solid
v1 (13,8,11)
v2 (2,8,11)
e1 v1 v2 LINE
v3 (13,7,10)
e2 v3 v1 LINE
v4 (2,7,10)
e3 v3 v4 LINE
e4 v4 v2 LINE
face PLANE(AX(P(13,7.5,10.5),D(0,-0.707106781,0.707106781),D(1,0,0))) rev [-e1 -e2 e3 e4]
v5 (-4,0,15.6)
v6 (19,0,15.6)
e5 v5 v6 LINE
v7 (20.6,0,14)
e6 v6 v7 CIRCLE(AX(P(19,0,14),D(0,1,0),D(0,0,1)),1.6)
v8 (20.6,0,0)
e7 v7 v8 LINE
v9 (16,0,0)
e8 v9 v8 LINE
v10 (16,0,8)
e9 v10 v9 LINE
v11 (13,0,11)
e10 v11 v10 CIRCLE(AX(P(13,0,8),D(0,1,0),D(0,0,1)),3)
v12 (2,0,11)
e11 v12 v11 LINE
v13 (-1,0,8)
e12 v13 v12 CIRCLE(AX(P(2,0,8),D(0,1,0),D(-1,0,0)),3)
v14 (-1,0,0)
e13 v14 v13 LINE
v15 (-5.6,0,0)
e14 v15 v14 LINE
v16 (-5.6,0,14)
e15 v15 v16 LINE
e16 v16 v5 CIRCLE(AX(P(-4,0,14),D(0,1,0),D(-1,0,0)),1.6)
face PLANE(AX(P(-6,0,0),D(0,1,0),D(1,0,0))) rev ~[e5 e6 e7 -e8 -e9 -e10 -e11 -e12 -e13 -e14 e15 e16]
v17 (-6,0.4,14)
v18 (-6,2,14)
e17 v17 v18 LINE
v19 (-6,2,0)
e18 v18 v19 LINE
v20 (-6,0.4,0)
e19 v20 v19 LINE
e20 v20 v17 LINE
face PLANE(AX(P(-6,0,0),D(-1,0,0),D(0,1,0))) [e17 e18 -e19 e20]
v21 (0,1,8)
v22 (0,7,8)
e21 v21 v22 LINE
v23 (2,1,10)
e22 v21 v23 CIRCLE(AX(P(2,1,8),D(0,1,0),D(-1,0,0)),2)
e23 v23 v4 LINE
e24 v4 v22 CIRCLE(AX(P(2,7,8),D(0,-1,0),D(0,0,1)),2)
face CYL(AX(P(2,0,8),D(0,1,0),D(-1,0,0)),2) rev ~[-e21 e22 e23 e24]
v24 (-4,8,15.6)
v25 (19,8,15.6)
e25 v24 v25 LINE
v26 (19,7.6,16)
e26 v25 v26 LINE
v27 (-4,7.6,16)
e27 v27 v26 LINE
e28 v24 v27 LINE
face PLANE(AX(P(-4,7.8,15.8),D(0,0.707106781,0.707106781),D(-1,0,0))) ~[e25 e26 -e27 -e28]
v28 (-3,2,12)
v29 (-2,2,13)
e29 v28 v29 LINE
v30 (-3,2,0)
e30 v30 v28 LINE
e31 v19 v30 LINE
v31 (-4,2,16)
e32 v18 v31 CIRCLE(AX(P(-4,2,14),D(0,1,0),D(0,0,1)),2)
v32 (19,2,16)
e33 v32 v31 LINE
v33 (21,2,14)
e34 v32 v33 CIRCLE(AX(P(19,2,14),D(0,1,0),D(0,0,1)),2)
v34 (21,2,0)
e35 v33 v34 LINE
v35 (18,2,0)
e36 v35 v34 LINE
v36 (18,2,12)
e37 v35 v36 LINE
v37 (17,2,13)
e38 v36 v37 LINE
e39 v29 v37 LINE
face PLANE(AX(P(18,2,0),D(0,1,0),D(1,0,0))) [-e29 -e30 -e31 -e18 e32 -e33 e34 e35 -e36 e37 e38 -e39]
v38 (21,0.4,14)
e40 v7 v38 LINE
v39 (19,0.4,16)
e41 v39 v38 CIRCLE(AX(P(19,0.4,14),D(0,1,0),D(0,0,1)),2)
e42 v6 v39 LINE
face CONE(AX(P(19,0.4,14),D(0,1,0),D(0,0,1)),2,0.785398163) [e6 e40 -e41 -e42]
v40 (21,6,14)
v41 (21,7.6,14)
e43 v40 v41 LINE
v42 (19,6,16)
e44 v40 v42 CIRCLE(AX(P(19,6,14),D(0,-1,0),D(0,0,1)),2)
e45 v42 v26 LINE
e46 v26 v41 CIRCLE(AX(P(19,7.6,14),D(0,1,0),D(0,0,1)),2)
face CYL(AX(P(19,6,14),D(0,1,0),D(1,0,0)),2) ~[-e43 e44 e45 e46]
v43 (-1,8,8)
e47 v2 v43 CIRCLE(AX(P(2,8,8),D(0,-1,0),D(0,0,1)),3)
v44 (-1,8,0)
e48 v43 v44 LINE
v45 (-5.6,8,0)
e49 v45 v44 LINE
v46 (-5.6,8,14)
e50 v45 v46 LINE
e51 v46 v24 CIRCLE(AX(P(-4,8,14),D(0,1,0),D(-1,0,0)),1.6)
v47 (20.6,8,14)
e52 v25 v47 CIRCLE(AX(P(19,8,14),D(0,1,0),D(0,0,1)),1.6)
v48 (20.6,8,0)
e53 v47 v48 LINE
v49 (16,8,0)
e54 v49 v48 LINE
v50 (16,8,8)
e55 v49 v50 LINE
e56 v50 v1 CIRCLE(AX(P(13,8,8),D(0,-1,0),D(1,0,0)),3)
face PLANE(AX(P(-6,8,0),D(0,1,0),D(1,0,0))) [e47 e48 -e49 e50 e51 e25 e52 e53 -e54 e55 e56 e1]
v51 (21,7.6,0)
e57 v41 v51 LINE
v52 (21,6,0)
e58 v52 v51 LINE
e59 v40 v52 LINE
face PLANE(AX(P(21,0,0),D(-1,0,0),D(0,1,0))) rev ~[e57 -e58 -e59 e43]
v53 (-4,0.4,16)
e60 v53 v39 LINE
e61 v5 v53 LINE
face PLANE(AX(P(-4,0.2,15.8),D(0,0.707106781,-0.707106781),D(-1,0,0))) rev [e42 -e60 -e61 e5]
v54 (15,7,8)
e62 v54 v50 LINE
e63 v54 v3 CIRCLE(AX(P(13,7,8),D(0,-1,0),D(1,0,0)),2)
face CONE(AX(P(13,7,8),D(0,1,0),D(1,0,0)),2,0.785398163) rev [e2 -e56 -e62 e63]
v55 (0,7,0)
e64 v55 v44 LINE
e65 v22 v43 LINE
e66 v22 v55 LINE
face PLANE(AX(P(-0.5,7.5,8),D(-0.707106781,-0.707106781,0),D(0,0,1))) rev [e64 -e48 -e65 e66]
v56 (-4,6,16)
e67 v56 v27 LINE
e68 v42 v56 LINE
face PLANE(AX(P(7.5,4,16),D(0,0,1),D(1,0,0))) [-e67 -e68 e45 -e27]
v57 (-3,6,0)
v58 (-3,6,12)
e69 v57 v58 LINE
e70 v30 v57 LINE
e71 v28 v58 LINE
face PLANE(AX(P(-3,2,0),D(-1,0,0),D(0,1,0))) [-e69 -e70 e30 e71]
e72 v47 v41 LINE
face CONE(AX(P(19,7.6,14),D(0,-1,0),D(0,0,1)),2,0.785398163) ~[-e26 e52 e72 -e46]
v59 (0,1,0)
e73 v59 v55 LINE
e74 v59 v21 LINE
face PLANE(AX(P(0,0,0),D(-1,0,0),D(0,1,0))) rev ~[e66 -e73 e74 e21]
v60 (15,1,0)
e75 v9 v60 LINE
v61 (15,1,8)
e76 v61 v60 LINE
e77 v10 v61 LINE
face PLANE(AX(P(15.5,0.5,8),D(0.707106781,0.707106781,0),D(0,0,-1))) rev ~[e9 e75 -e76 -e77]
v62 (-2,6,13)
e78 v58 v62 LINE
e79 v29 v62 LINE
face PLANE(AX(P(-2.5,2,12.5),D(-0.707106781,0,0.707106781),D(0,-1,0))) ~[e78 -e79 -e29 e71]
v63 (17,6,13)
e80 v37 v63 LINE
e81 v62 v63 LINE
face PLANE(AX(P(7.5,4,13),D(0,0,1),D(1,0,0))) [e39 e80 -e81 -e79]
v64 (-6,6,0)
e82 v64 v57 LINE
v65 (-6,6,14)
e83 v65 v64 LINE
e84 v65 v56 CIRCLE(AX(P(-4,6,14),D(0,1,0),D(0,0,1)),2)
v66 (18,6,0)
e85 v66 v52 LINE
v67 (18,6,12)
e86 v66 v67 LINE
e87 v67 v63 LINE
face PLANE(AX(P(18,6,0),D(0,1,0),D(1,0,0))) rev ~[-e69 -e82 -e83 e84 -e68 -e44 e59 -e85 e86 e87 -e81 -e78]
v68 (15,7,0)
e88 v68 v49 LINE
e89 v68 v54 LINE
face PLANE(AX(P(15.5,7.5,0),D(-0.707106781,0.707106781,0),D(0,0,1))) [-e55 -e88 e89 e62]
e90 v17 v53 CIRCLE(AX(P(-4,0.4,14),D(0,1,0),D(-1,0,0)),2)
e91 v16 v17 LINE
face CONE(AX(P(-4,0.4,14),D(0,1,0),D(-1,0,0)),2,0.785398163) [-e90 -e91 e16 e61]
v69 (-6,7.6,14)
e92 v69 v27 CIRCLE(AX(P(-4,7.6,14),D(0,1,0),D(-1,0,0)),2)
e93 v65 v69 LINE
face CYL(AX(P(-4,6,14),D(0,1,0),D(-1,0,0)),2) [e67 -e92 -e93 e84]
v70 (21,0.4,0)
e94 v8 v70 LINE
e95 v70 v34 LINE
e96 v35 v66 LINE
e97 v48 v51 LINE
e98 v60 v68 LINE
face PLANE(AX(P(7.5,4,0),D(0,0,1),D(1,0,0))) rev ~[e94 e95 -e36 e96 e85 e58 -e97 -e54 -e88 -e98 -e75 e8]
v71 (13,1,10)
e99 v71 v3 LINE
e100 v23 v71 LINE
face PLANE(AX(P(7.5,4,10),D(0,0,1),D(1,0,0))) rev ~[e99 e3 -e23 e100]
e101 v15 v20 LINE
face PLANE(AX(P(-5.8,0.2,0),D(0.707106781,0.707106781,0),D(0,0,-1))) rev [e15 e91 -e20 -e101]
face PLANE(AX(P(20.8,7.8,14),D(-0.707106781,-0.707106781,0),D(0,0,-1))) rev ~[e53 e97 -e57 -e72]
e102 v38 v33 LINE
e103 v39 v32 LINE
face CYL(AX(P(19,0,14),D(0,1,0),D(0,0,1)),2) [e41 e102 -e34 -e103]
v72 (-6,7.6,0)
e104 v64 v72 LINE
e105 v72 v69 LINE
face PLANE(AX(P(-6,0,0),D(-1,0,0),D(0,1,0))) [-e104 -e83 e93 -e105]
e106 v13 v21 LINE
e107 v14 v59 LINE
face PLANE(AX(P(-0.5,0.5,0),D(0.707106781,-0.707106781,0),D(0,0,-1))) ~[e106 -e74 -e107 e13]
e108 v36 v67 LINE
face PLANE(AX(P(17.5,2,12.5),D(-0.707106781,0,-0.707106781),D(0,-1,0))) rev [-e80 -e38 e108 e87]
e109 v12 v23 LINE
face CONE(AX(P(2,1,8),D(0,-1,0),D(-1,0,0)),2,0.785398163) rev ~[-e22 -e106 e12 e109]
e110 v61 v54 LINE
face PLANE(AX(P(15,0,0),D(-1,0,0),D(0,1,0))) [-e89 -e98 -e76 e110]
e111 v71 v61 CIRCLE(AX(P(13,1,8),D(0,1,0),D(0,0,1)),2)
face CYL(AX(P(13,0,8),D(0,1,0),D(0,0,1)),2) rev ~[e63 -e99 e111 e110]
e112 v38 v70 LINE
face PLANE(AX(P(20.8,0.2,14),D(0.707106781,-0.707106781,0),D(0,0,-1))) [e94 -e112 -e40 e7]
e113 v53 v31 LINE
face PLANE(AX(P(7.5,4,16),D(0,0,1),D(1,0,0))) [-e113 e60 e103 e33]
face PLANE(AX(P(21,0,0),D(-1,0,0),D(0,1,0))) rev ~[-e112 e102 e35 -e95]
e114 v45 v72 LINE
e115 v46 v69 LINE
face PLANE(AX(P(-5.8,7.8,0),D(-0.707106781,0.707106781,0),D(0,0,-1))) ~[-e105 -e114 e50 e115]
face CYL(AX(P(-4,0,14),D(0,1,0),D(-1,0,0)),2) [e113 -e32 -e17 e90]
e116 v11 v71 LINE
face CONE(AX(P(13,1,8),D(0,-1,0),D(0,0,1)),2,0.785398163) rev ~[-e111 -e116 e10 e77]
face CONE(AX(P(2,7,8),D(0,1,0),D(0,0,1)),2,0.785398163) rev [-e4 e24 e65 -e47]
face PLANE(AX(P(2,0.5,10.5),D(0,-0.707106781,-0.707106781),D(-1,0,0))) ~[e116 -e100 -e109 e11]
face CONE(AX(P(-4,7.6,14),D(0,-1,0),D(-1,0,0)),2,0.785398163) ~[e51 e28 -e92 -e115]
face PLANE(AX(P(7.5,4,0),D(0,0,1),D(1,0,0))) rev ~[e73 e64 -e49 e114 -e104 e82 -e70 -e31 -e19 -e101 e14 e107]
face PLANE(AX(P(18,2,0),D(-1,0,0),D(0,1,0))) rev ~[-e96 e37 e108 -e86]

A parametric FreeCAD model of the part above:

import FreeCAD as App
import Part
import Sketcher


def edges_at(feature, points):
    """Names of the edges that pass closest to the given points."""
    edges = feature.Shape.Edges
    near = lambda p: min(range(len(edges)), key=lambda i: edges[i].distToShape(Part.Vertex(*p))[0])
    return sorted({f"Edge{near(p) + 1}" for p in points})

doc = App.newDocument("Part")
body = doc.addObject("PartDesign::Body", "Body")

# Sketch on XY plane
sketch1 = doc.addObject("Sketcher::SketchObject", "Sketch")
body.addObject(sketch1)
sketch1.AttachmentSupport = (doc.XY_Plane, [""])
sketch1.MapMode = "FlatFace"
sketch1.AttachmentOffset = App.Placement(App.Vector(0, 0, 13), App.Rotation())
sketch1.addGeometry(Part.LineSegment(App.Vector(-3, 6, 0), App.Vector(-3, 2, 0)), False)
sketch1.addGeometry(Part.LineSegment(App.Vector(-3, 2, 0), App.Vector(18, 2, 0)), False)
sketch1.addGeometry(Part.LineSegment(App.Vector(18, 2, 0), App.Vector(18, 6, 0)), False)
sketch1.addGeometry(Part.LineSegment(App.Vector(18, 6, 0), App.Vector(-3, 6, 0)), False)
sketch1.addConstraint(Sketcher.Constraint("Coincident", 0, 2, 1, 1))
sketch1.addConstraint(Sketcher.Constraint("Coincident", 1, 2, 2, 1))
sketch1.addConstraint(Sketcher.Constraint("Coincident", 2, 2, 3, 1))
sketch1.addConstraint(Sketcher.Constraint("Coincident", 3, 2, 0, 1))
sketch1.addConstraint(Sketcher.Constraint("Vertical", 0))
sketch1.addConstraint(Sketcher.Constraint("Horizontal", 1))
sketch1.addConstraint(Sketcher.Constraint("Vertical", 2))
sketch1.addConstraint(Sketcher.Constraint("Horizontal", 3))
sketch1.addConstraint(Sketcher.Constraint("DistanceX", 1, 1, 1, 2, 21.0))
sketch1.addConstraint(Sketcher.Constraint("DistanceY", 0, 2, 0, 1, 4.0))
sketch1.addConstraint(Sketcher.Constraint("DistanceX", 0, 2, -1, 1, 3.0))
sketch1.addConstraint(Sketcher.Constraint("DistanceY", -1, 1, 0, 2, 2.0))
pad1 = doc.addObject("PartDesign::Pad", "Pad")
body.addObject(pad1)
pad1.Profile = sketch1
pad1.Length = 10
body2 = doc.addObject("PartDesign::Body", "Body001")

# Sketch on XY plane
sketch2 = doc.addObject("Sketcher::SketchObject", "Sketch001")
body2.addObject(sketch2)
sketch2.AttachmentSupport = (doc.getObject("XY_Plane001"), [""])
sketch2.MapMode = "FlatFace"
sketch2.addGeometry(Part.LineSegment(App.Vector(18, 6, 0), App.Vector(18, 2, 0)), False)
sketch2.addGeometry(Part.LineSegment(App.Vector(18, 2, 0), App.Vector(33, 2, 0)), False)
sketch2.addGeometry(Part.LineSegment(App.Vector(33, 2, 0), App.Vector(33, 6, 0)), False)
sketch2.addGeometry(Part.LineSegment(App.Vector(33, 6, 0), App.Vector(18, 6, 0)), False)
sketch2.addConstraint(Sketcher.Constraint("Coincident", 0, 2, 1, 1))
sketch2.addConstraint(Sketcher.Constraint("Coincident", 1, 2, 2, 1))
sketch2.addConstraint(Sketcher.Constraint("Coincident", 2, 2, 3, 1))
sketch2.addConstraint(Sketcher.Constraint("Coincident", 3, 2, 0, 1))
sketch2.addConstraint(Sketcher.Constraint("Vertical", 0))
sketch2.addConstraint(Sketcher.Constraint("Horizontal", 1))
sketch2.addConstraint(Sketcher.Constraint("Vertical", 2))
sketch2.addConstraint(Sketcher.Constraint("Horizontal", 3))
sketch2.addConstraint(Sketcher.Constraint("DistanceX", 1, 1, 1, 2, 15.0))
sketch2.addConstraint(Sketcher.Constraint("DistanceY", 0, 2, 0, 1, 4.0))
sketch2.addConstraint(Sketcher.Constraint("DistanceX", -1, 1, 0, 2, 18.0))
sketch2.addConstraint(Sketcher.Constraint("DistanceY", -1, 1, 0, 2, 2.0))
pad2 = doc.addObject("PartDesign::Pad", "Pad001")
body2.addObject(pad2)
pad2.Profile = sketch2
pad2.Length = 19
body3 = doc.addObject("PartDesign::Body", "Body002")

# Sketch on XY plane
sketch3 = doc.addObject("Sketcher::SketchObject", "Sketch002")
body3.addObject(sketch3)
sketch3.AttachmentSupport = (doc.getObject("XY_Plane002"), [""])
sketch3.MapMode = "FlatFace"
sketch3.addGeometry(Part.LineSegment(App.Vector(-18, 6, 0), App.Vector(-18, 2, 0)), False)
sketch3.addGeometry(Part.LineSegment(App.Vector(-18, 2, 0), App.Vector(-3, 2, 0)), False)
sketch3.addGeometry(Part.LineSegment(App.Vector(-3, 2, 0), App.Vector(-3, 6, 0)), False)
sketch3.addGeometry(Part.LineSegment(App.Vector(-3, 6, 0), App.Vector(-18, 6, 0)), False)
sketch3.addConstraint(Sketcher.Constraint("Coincident", 0, 2, 1, 1))
sketch3.addConstraint(Sketcher.Constraint("Coincident", 1, 2, 2, 1))
sketch3.addConstraint(Sketcher.Constraint("Coincident", 2, 2, 3, 1))
sketch3.addConstraint(Sketcher.Constraint("Coincident", 3, 2, 0, 1))
sketch3.addConstraint(Sketcher.Constraint("Vertical", 0))
sketch3.addConstraint(Sketcher.Constraint("Horizontal", 1))
sketch3.addConstraint(Sketcher.Constraint("Vertical", 2))
sketch3.addConstraint(Sketcher.Constraint("Horizontal", 3))
sketch3.addConstraint(Sketcher.Constraint("DistanceX", 1, 1, 1, 2, 15.0))
sketch3.addConstraint(Sketcher.Constraint("DistanceY", 0, 2, 0, 1, 4.0))
sketch3.addConstraint(Sketcher.Constraint("DistanceX", 0, 2, -1, 1, 18.0))
sketch3.addConstraint(Sketcher.Constraint("DistanceY", -1, 1, 0, 2, 2.0))
pad3 = doc.addObject("PartDesign::Pad", "Pad002")
body3.addObject(pad3)
pad3.Profile = sketch3
pad3.Length = 19
doc.recompute()

boolean = doc.addObject("PartDesign::Boolean", "Boolean")
body3.addObject(boolean)
boolean.Type = "Fuse"
boolean.addObjects([body])
doc.recompute()

boolean2 = doc.addObject("PartDesign::Boolean", "Boolean001")
body3.addObject(boolean2)
boolean2.Type = "Fuse"
boolean2.addObjects([body2])
body4 = doc.addObject("PartDesign::Body", "Body003")

# Sketch on XY plane
sketch4 = doc.addObject("Sketcher::SketchObject", "Sketch003")
body4.addObject(sketch4)
sketch4.AttachmentSupport = (doc.getObject("XY_Plane003"), [""])
sketch4.MapMode = "FlatFace"
sketch4.addGeometry(Part.LineSegment(App.Vector(0, 8, 0), App.Vector(0, 0, 0)), False)
sketch4.addGeometry(Part.LineSegment(App.Vector(0, 0, 0), App.Vector(15, 0, 0)), False)
sketch4.addGeometry(Part.LineSegment(App.Vector(15, 0, 0), App.Vector(15, 8, 0)), False)
sketch4.addGeometry(Part.LineSegment(App.Vector(15, 8, 0), App.Vector(0, 8, 0)), False)
sketch4.addConstraint(Sketcher.Constraint("Coincident", 0, 2, 1, 1))
sketch4.addConstraint(Sketcher.Constraint("Coincident", 1, 2, 2, 1))
sketch4.addConstraint(Sketcher.Constraint("Coincident", 2, 2, 3, 1))
sketch4.addConstraint(Sketcher.Constraint("Coincident", 3, 2, 0, 1))
sketch4.addConstraint(Sketcher.Constraint("Vertical", 0))
sketch4.addConstraint(Sketcher.Constraint("Horizontal", 1))
sketch4.addConstraint(Sketcher.Constraint("Vertical", 2))
sketch4.addConstraint(Sketcher.Constraint("Horizontal", 3))
sketch4.addConstraint(Sketcher.Constraint("Coincident", 0, 2, -1, 1))
sketch4.addConstraint(Sketcher.Constraint("DistanceX", 1, 1, 1, 2, 15.0))
sketch4.addConstraint(Sketcher.Constraint("DistanceY", 0, 2, 0, 1, 8.0))
pad4 = doc.addObject("PartDesign::Pad", "Pad003")
body4.addObject(pad4)
pad4.Profile = sketch4
pad4.Length = 10
body5 = doc.addObject("PartDesign::Body", "Body004")

# Sketch on XY plane
sketch5 = doc.addObject("Sketcher::SketchObject", "Sketch004")
body5.addObject(sketch5)
sketch5.AttachmentSupport = (doc.getObject("XY_Plane004"), [""])
sketch5.MapMode = "FlatFace"
sketch5.addGeometry(Part.LineSegment(App.Vector(-6, 8, 0), App.Vector(-6, 0, 0)), False)
sketch5.addGeometry(Part.LineSegment(App.Vector(-6, 0, 0), App.Vector(21, 0, 0)), False)
sketch5.addGeometry(Part.LineSegment(App.Vector(21, 0, 0), App.Vector(21, 8, 0)), False)
sketch5.addGeometry(Part.LineSegment(App.Vector(21, 8, 0), App.Vector(-6, 8, 0)), False)
sketch5.addConstraint(Sketcher.Constraint("Coincident", 0, 2, 1, 1))
sketch5.addConstraint(Sketcher.Constraint("Coincident", 1, 2, 2, 1))
sketch5.addConstraint(Sketcher.Constraint("Coincident", 2, 2, 3, 1))
sketch5.addConstraint(Sketcher.Constraint("Coincident", 3, 2, 0, 1))
sketch5.addConstraint(Sketcher.Constraint("Vertical", 0))
sketch5.addConstraint(Sketcher.Constraint("Horizontal", 1))
sketch5.addConstraint(Sketcher.Constraint("Vertical", 2))
sketch5.addConstraint(Sketcher.Constraint("Horizontal", 3))
sketch5.addConstraint(Sketcher.Constraint("PointOnObject", 0, 2, -1))
sketch5.addConstraint(Sketcher.Constraint("DistanceX", 1, 1, 1, 2, 27.0))
sketch5.addConstraint(Sketcher.Constraint("DistanceY", 0, 2, 0, 1, 8.0))
sketch5.addConstraint(Sketcher.Constraint("DistanceX", 0, 2, -1, 1, 6.0))
pad5 = doc.addObject("PartDesign::Pad", "Pad004")
body5.addObject(pad5)
pad5.Profile = sketch5
pad5.Length = 16
doc.recompute()

boolean3 = doc.addObject("PartDesign::Boolean", "Boolean002")
body5.addObject(boolean3)
boolean3.Type = "Cut"
boolean3.addObjects([body4])
doc.recompute()

boolean4 = doc.addObject("PartDesign::Boolean", "Boolean003")
body5.addObject(boolean4)
boolean4.Type = "Cut"
boolean4.addObjects([body3])
doc.recompute()

fillet = doc.addObject("PartDesign::Fillet", "Fillet")
body5.addObject(fillet)
fillet.Base = (boolean4, edges_at(boolean4, [(0, 4, 10), (15, 4, 10)]))
fillet.Radius = 2
doc.recompute()

fillet2 = doc.addObject("PartDesign::Fillet", "Fillet001")
body5.addObject(fillet2)
fillet2.Base = (fillet, edges_at(fillet, [
    (-6, 1, 16),
    (21, 1, 16),
    (-6, 7, 16),
    (21, 7, 16),
]))
fillet2.Radius = 2
doc.recompute()

chamfer = doc.addObject("PartDesign::Chamfer", "Chamfer")
body5.addObject(chamfer)
chamfer.Base = (fillet2, edges_at(fillet2, [(-3, 4, 13), (18, 4, 13)]))
chamfer.Size = 1
doc.recompute()

chamfer2 = doc.addObject("PartDesign::Chamfer", "Chamfer001")
body5.addObject(chamfer2)
chamfer2.Base = (chamfer, edges_at(chamfer, [
    (15, 8, 4),
    (14.414, 8, 9.414),
    (7.5, 8, 10),
    (0.586, 8, 9.414),
    (0, 8, 4),
    (0, 0, 4),
    (15, 0, 4),
    (14.414, 0, 9.414),
    (7.5, 0, 10),
    (0.586, 0, 9.414),
]))
chamfer2.Size = 1
doc.recompute()

chamfer3 = doc.addObject("PartDesign::Chamfer", "Chamfer002")
body5.addObject(chamfer3)
chamfer3.Base = (chamfer2, edges_at(chamfer2, [
    (-6, 8, 7),
    (-5.414, 8, 15.414),
    (7.5, 8, 16),
    (20.414, 8, 15.414),
    (21, 8, 7),
    (-6, 0, 7),
    (-5.414, 0, 15.414),
    (7.5, 0, 16),
    (20.414, 0, 15.414),
    (21, 0, 7),
]))
chamfer3.Size = 0.4

doc.recompute()
